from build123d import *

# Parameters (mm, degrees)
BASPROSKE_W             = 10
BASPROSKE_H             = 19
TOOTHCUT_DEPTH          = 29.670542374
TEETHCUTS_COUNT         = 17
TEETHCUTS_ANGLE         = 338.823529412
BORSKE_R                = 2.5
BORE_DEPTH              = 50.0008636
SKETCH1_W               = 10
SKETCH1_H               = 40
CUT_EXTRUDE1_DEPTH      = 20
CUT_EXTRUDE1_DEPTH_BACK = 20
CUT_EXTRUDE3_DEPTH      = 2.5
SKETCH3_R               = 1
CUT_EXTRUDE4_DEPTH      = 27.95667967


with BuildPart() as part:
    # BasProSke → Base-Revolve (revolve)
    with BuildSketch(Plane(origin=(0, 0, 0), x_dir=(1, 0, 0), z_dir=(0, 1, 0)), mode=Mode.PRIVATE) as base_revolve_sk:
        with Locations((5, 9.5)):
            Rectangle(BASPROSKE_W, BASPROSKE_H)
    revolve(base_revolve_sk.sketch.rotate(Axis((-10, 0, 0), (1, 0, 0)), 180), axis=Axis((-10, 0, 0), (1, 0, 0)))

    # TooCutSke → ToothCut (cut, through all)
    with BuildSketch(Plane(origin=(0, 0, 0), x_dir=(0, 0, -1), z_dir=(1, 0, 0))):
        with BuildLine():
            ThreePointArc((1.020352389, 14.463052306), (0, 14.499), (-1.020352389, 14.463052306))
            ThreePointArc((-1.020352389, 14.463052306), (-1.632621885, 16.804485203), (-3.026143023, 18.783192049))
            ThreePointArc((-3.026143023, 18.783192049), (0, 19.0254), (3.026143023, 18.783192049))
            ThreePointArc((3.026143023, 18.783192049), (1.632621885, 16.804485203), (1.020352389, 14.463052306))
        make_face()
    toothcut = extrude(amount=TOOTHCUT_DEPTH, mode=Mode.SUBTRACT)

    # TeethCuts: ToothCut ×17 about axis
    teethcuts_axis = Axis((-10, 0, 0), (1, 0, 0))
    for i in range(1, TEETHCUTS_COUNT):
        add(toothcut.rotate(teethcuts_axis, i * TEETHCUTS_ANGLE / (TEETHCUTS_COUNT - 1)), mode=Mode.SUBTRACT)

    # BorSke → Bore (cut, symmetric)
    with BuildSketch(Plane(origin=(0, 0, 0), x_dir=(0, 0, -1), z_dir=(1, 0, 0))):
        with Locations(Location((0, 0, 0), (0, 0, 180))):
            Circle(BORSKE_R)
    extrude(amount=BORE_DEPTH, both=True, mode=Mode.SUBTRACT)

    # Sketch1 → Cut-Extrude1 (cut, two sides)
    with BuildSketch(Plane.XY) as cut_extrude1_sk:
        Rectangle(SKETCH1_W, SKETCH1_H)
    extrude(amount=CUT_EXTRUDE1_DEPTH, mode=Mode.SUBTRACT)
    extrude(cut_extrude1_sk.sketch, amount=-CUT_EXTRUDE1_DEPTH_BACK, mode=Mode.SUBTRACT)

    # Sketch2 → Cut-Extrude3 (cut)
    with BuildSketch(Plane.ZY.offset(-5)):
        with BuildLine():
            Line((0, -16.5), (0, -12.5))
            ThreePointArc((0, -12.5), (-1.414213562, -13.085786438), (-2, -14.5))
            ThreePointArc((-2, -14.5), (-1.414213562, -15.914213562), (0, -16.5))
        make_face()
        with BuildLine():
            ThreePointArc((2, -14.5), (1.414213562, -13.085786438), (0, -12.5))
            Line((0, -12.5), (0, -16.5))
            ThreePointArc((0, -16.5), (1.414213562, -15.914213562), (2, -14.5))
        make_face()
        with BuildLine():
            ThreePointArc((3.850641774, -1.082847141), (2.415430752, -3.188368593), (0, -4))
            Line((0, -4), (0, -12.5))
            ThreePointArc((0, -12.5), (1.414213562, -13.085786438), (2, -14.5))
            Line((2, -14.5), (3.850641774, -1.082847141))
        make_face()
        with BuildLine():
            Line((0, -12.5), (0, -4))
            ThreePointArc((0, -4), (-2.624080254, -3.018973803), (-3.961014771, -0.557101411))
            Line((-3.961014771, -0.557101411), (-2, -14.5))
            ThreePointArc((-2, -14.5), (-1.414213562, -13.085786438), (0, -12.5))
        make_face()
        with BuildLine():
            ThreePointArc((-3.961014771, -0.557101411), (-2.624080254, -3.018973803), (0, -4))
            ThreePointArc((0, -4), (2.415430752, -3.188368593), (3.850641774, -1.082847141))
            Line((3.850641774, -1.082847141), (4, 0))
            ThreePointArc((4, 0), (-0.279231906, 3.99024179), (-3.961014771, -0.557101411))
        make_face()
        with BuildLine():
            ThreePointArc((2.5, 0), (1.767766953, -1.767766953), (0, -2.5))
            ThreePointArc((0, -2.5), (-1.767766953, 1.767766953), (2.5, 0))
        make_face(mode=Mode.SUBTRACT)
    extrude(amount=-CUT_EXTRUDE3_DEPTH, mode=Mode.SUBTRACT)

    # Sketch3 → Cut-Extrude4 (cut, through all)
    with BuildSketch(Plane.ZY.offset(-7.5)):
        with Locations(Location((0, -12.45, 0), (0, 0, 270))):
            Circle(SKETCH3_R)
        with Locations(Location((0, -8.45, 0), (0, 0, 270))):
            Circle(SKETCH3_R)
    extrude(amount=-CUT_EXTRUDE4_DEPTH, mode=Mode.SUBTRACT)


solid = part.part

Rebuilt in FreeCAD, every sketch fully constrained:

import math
import FreeCAD as App
import Part
import Sketcher
from FreeCAD import Vector

doc = App.newDocument("Part")
body = doc.addObject("PartDesign::Body", "Body")

# Sketch on XZ plane
sketch1 = body.newObject("Sketcher::SketchObject", "Sketch")
sketch1.AttachmentSupport = (doc.getObject("XZ_Plane"), [""])
sketch1.MapMode = "FlatFace"
sketch1.addGeometry(Part.LineSegment(Vector(0, -19, 0), Vector(0, 0, 0)), False)
sketch1.addGeometry(Part.LineSegment(Vector(0, 0, 0), Vector(10, 0, 0)), False)
sketch1.addGeometry(Part.LineSegment(Vector(10, 0, 0), Vector(10, -19, 0)), False)
sketch1.addGeometry(Part.LineSegment(Vector(10, -19, 0), Vector(0, -19, 0)), False)
sketch1.addConstraint(Sketcher.Constraint("Coincident", 0, 2, 1, 1))
sketch1.addConstraint(Sketcher.Constraint("Coincident", 1, 2, 2, 1))
sketch1.addConstraint(Sketcher.Constraint("Coincident", 2, 2, 3, 1))
sketch1.addConstraint(Sketcher.Constraint("Coincident", 3, 2, 0, 1))
sketch1.addConstraint(Sketcher.Constraint("Vertical", 0))
sketch1.addConstraint(Sketcher.Constraint("Horizontal", 1))
sketch1.addConstraint(Sketcher.Constraint("Vertical", 2))
sketch1.addConstraint(Sketcher.Constraint("Horizontal", 3))
sketch1.addConstraint(Sketcher.Constraint("Coincident", 0, 2, -1, 1))
sketch1.addConstraint(Sketcher.Constraint("DistanceX", 1, 1, 1, 2, 10.0))
sketch1.addConstraint(Sketcher.Constraint("DistanceY", 0, 1, 0, 2, 19.0))
revolution = body.newObject("PartDesign::Revolution", "Revolution")
revolution.Profile = sketch1
revolution.ReferenceAxis = (sketch1, ["H_Axis"])
revolution.Angle = 360

# Sketch on YZ plane
sketch2 = body.newObject("Sketcher::SketchObject", "Sketch001")
sketch2.AttachmentSupport = (doc.getObject("YZ_Plane"), [""])
sketch2.MapMode = "FlatFace"
sketch2.addGeometry(Part.ArcOfCircle(Part.Circle(Vector(0, 0, 0), Vector(0, 0, 1), 14.5), math.radians(-4.04), math.radians(4.04)), False)
sketch2.addGeometry(Part.ArcOfCircle(Part.Circle(Vector(13.9, -7.8, 0), Vector(0, 0, 1), 6.8), math.radians(45), math.radians(86)), False)
sketch2.addGeometry(Part.ArcOfCircle(Part.Circle(Vector(0, 0, 0), Vector(0, 0, 1), 19), math.radians(-9.15), math.radians(9.15)), False)
sketch2.addGeometry(Part.ArcOfCircle(Part.Circle(Vector(13.9, 7.8, 0), Vector(0, 0, 1), 6.8), math.radians(-86), math.radians(-45)), False)
sketch2.addConstraint(Sketcher.Constraint("Coincident", 0, 1, 1, 2))
sketch2.addConstraint(Sketcher.Constraint("Coincident", 1, 1, 2, 1))
sketch2.addConstraint(Sketcher.Constraint("Coincident", 2, 2, 3, 2))
sketch2.addConstraint(Sketcher.Constraint("Coincident", 3, 1, 0, 2))
sketch2.addConstraint(Sketcher.Constraint("Coincident", 0, 3, -1, 1))
sketch2.addConstraint(Sketcher.Constraint("Coincident", 2, 3, -1, 1))
sketch2.addConstraint(Sketcher.Constraint("Equal", 1, 3))
sketch2.addConstraint(Sketcher.Constraint("Symmetric", 1, 3, 3, 3, -1))
sketch2.addConstraint(Sketcher.Constraint("Radius", 1, 6.8))
sketch2.addConstraint(Sketcher.Constraint("Radius", 0, 14.499))
sketch2.addConstraint(Sketcher.Constraint("Radius", 2, 19.0254))
sketch2.addConstraint(Sketcher.Constraint("DistanceY", 0, 1, 3, 3, 8.820629))
sketch2.addConstraint(Sketcher.Constraint("DistanceX", 0, 1, 1, 1, 4.32014))
pocket1 = body.newObject("PartDesign::Pocket", "Pocket")
pocket1.Profile = sketch2
pocket1.Type = "ThroughAll"
pocket1.Reversed = True
doc.recompute()

polarpattern = body.newObject("PartDesign::PolarPattern", "PolarPattern")
polarpattern.Originals = [pocket1]
polarpattern.Axis = (doc.getObject("X_Axis"), [""])
polarpattern.Angle = 360
polarpattern.Occurrences = 17
body.Tip = polarpattern

# Sketch on YZ plane
sketch3 = body.newObject("Sketcher::SketchObject", "Sketch002")
sketch3.AttachmentSupport = (doc.getObject("YZ_Plane"), [""])
sketch3.MapMode = "FlatFace"
sketch3.addGeometry(Part.Circle(Vector(0, 0, 0), Vector(0, 0, 1), 2.5), False)
sketch3.addConstraint(Sketcher.Constraint("Coincident", 0, 3, -1, 1))
sketch3.addConstraint(Sketcher.Constraint("Diameter", 0, 5.0))
pocket2 = body.newObject("PartDesign::Pocket", "Pocket001")
pocket2.Profile = sketch3
pocket2.Length = 100.001727
pocket2.Midplane = True

# Sketch on XY plane
sketch4 = body.newObject("Sketcher::SketchObject", "Sketch003")
sketch4.AttachmentSupport = (doc.getObject("XY_Plane"), [""])
sketch4.MapMode = "FlatFace"
sketch4.addGeometry(Part.LineSegment(Vector(-5, 20, 0), Vector(-5, -20, 0)), False)
sketch4.addGeometry(Part.LineSegment(Vector(-5, -20, 0), Vector(5, -20, 0)), False)
sketch4.addGeometry(Part.LineSegment(Vector(5, -20, 0), Vector(5, 20, 0)), False)
sketch4.addGeometry(Part.LineSegment(Vector(5, 20, 0), Vector(-5, 20, 0)), False)
sketch4.addConstraint(Sketcher.Constraint("Coincident", 0, 2, 1, 1))
sketch4.addConstraint(Sketcher.Constraint("Coincident", 1, 2, 2, 1))
sketch4.addConstraint(Sketcher.Constraint("Coincident", 2, 2, 3, 1))
sketch4.addConstraint(Sketcher.Constraint("Coincident", 3, 2, 0, 1))
sketch4.addConstraint(Sketcher.Constraint("Vertical", 0))
sketch4.addConstraint(Sketcher.Constraint("Horizontal", 1))
sketch4.addConstraint(Sketcher.Constraint("Vertical", 2))
sketch4.addConstraint(Sketcher.Constraint("Horizontal", 3))
sketch4.addConstraint(Sketcher.Constraint("Symmetric", 0, 2, 2, 2, -1, 1))
sketch4.addConstraint(Sketcher.Constraint("DistanceX", 1, 1, 1, 2, 10.0))
sketch4.addConstraint(Sketcher.Constraint("DistanceY", 0, 2, 0, 1, 40.0))
pocket3 = body.newObject("PartDesign::Pocket", "Pocket002")
pocket3.Profile = sketch4
pocket3.Type = "ThroughAll"
pocket3.Midplane = True

# Sketch on YZ plane
sketch5 = body.newObject("Sketcher::SketchObject", "Sketch004")
sketch5.AttachmentSupport = (doc.getObject("YZ_Plane"), [""])
sketch5.MapMode = "FlatFace"
sketch5.AttachmentOffset = App.Placement(Vector(0, 0, 5), App.Rotation())
sketch5.addGeometry(Part.ArcOfCircle(Part.Circle(Vector(-14.5, 0, 0), Vector(0, 0, 1), 2), math.radians(-180), math.radians(-90)), False)
sketch5.addGeometry(Part.ArcOfCircle(Part.Circle(Vector(-14.5, 0, 0), Vector(0, 0, 1), 2), math.radians(90), math.radians(180)), False)
sketch5.addGeometry(Part.LineSegment(Vector(-14.5, 2, 0), Vector(-1.1, 3.9, 0)), False)
sketch5.addGeometry(Part.LineSegment(Vector(-1.1, 3.9, 0), Vector(0, 4, 0)), False)
sketch5.addGeometry(Part.ArcOfCircle(Part.Circle(Vector(0, 0, 0), Vector(0, 0, 1), 4), math.radians(-98), math.radians(90)), False)
sketch5.addGeometry(Part.LineSegment(Vector(-0.6, -4, 0), Vector(-14.5, -2, 0)), False)
sketch5.addGeometry(Part.ArcOfCircle(Part.Circle(Vector(0, 0, 0), Vector(0, 0, 1), 2.5), math.radians(180), math.radians(450)), False)
sketch5.addGeometry(Part.ArcOfCircle(Part.Circle(Vector(0, 0, 0), Vector(0, 0, 1), 2.5), math.radians(90), math.radians(180)), False)
sketch5.addConstraint(Sketcher.Constraint("Tangent", 0, 1, 1, 2))
sketch5.addConstraint(Sketcher.Constraint("Coincident", 1, 1, 2, 1))
sketch5.addConstraint(Sketcher.Constraint("Coincident", 2, 2, 3, 1))
sketch5.addConstraint(Sketcher.Constraint("Coincident", 3, 2, 4, 2))
sketch5.addConstraint(Sketcher.Constraint("Tangent", 4, 1, 5, 1))
sketch5.addConstraint(Sketcher.Constraint("Coincident", 5, 2, 0, 2))
sketch5.addConstraint(Sketcher.Constraint("Tangent", 6, 1, 7, 2))
sketch5.addConstraint(Sketcher.Constraint("Coincident", 7, 1, 6, 2))
sketch5.addConstraint(Sketcher.Constraint("Coincident", 4, 3, -1, 1))
sketch5.addConstraint(Sketcher.Constraint("Coincident", 6, 3, -1, 1))
sketch5.addConstraint(Sketcher.Constraint("Equal", 0, 1))
sketch5.addConstraint(Sketcher.Constraint("Symmetric", 1, 1, 5, 2, -1))
sketch5.addConstraint(Sketcher.Constraint("PointOnObject", 0, 1, -1))
sketch5.addConstraint(Sketcher.Constraint("PointOnObject", 3, 2, -2))
sketch5.addConstraint(Sketcher.Constraint("PointOnObject", 6, 1, -1))
sketch5.addConstraint(Sketcher.Constraint("PointOnObject", 7, 1, -2))
sketch5.addConstraint(Sketcher.Constraint("Parallel", 2, 3))
sketch5.addConstraint(Sketcher.Constraint("Vertical", 0, 3, 1, 1))
sketch5.addConstraint(Sketcher.Constraint("Radius", 0, 2.0))
sketch5.addConstraint(Sketcher.Constraint("Radius", 4, 4.0))
sketch5.addConstraint(Sketcher.Constraint("Radius", 6, 2.5))
sketch5.addConstraint(Sketcher.Constraint("DistanceX", 0, 3, -1, 1, 14.5))
sketch5.addConstraint(Sketcher.Constraint("Distance", 3, 1.093099))
pocket4 = body.newObject("PartDesign::Pocket", "Pocket003")
pocket4.Profile = sketch5
pocket4.Length = 2.5
pocket4.Reversed = True

# Sketch on YZ plane
sketch6 = body.newObject("Sketcher::SketchObject", "Sketch005")
sketch6.AttachmentSupport = (doc.getObject("YZ_Plane"), [""])
sketch6.MapMode = "FlatFace"
sketch6.AttachmentOffset = App.Placement(Vector(0, 0, 7.5), App.Rotation())
sketch6.addGeometry(Part.Circle(Vector(-12.4, 0, 0), Vector(0, 0, 1), 1), False)
sketch6.addGeometry(Part.Circle(Vector(-8.4, 0, 0), Vector(0, 0, 1), 1), False)
sketch6.addConstraint(Sketcher.Constraint("Equal", 0, 1))
sketch6.addConstraint(Sketcher.Constraint("PointOnObject", 0, 3, -1))
sketch6.addConstraint(Sketcher.Constraint("PointOnObject", 1, 3, -1))
sketch6.addConstraint(Sketcher.Constraint("Diameter", 0, 2.0))
sketch6.addConstraint(Sketcher.Constraint("DistanceX", 0, 3, 1, 3, 4.0))
sketch6.addConstraint(Sketcher.Constraint("DistanceX", 0, 3, -1, 1, 12.45))
pocket5 = body.newObject("PartDesign::Pocket", "Pocket004")
pocket5.Profile = sketch6
pocket5.Type = "ThroughAll"
pocket5.Reversed = True

doc.recompute()
